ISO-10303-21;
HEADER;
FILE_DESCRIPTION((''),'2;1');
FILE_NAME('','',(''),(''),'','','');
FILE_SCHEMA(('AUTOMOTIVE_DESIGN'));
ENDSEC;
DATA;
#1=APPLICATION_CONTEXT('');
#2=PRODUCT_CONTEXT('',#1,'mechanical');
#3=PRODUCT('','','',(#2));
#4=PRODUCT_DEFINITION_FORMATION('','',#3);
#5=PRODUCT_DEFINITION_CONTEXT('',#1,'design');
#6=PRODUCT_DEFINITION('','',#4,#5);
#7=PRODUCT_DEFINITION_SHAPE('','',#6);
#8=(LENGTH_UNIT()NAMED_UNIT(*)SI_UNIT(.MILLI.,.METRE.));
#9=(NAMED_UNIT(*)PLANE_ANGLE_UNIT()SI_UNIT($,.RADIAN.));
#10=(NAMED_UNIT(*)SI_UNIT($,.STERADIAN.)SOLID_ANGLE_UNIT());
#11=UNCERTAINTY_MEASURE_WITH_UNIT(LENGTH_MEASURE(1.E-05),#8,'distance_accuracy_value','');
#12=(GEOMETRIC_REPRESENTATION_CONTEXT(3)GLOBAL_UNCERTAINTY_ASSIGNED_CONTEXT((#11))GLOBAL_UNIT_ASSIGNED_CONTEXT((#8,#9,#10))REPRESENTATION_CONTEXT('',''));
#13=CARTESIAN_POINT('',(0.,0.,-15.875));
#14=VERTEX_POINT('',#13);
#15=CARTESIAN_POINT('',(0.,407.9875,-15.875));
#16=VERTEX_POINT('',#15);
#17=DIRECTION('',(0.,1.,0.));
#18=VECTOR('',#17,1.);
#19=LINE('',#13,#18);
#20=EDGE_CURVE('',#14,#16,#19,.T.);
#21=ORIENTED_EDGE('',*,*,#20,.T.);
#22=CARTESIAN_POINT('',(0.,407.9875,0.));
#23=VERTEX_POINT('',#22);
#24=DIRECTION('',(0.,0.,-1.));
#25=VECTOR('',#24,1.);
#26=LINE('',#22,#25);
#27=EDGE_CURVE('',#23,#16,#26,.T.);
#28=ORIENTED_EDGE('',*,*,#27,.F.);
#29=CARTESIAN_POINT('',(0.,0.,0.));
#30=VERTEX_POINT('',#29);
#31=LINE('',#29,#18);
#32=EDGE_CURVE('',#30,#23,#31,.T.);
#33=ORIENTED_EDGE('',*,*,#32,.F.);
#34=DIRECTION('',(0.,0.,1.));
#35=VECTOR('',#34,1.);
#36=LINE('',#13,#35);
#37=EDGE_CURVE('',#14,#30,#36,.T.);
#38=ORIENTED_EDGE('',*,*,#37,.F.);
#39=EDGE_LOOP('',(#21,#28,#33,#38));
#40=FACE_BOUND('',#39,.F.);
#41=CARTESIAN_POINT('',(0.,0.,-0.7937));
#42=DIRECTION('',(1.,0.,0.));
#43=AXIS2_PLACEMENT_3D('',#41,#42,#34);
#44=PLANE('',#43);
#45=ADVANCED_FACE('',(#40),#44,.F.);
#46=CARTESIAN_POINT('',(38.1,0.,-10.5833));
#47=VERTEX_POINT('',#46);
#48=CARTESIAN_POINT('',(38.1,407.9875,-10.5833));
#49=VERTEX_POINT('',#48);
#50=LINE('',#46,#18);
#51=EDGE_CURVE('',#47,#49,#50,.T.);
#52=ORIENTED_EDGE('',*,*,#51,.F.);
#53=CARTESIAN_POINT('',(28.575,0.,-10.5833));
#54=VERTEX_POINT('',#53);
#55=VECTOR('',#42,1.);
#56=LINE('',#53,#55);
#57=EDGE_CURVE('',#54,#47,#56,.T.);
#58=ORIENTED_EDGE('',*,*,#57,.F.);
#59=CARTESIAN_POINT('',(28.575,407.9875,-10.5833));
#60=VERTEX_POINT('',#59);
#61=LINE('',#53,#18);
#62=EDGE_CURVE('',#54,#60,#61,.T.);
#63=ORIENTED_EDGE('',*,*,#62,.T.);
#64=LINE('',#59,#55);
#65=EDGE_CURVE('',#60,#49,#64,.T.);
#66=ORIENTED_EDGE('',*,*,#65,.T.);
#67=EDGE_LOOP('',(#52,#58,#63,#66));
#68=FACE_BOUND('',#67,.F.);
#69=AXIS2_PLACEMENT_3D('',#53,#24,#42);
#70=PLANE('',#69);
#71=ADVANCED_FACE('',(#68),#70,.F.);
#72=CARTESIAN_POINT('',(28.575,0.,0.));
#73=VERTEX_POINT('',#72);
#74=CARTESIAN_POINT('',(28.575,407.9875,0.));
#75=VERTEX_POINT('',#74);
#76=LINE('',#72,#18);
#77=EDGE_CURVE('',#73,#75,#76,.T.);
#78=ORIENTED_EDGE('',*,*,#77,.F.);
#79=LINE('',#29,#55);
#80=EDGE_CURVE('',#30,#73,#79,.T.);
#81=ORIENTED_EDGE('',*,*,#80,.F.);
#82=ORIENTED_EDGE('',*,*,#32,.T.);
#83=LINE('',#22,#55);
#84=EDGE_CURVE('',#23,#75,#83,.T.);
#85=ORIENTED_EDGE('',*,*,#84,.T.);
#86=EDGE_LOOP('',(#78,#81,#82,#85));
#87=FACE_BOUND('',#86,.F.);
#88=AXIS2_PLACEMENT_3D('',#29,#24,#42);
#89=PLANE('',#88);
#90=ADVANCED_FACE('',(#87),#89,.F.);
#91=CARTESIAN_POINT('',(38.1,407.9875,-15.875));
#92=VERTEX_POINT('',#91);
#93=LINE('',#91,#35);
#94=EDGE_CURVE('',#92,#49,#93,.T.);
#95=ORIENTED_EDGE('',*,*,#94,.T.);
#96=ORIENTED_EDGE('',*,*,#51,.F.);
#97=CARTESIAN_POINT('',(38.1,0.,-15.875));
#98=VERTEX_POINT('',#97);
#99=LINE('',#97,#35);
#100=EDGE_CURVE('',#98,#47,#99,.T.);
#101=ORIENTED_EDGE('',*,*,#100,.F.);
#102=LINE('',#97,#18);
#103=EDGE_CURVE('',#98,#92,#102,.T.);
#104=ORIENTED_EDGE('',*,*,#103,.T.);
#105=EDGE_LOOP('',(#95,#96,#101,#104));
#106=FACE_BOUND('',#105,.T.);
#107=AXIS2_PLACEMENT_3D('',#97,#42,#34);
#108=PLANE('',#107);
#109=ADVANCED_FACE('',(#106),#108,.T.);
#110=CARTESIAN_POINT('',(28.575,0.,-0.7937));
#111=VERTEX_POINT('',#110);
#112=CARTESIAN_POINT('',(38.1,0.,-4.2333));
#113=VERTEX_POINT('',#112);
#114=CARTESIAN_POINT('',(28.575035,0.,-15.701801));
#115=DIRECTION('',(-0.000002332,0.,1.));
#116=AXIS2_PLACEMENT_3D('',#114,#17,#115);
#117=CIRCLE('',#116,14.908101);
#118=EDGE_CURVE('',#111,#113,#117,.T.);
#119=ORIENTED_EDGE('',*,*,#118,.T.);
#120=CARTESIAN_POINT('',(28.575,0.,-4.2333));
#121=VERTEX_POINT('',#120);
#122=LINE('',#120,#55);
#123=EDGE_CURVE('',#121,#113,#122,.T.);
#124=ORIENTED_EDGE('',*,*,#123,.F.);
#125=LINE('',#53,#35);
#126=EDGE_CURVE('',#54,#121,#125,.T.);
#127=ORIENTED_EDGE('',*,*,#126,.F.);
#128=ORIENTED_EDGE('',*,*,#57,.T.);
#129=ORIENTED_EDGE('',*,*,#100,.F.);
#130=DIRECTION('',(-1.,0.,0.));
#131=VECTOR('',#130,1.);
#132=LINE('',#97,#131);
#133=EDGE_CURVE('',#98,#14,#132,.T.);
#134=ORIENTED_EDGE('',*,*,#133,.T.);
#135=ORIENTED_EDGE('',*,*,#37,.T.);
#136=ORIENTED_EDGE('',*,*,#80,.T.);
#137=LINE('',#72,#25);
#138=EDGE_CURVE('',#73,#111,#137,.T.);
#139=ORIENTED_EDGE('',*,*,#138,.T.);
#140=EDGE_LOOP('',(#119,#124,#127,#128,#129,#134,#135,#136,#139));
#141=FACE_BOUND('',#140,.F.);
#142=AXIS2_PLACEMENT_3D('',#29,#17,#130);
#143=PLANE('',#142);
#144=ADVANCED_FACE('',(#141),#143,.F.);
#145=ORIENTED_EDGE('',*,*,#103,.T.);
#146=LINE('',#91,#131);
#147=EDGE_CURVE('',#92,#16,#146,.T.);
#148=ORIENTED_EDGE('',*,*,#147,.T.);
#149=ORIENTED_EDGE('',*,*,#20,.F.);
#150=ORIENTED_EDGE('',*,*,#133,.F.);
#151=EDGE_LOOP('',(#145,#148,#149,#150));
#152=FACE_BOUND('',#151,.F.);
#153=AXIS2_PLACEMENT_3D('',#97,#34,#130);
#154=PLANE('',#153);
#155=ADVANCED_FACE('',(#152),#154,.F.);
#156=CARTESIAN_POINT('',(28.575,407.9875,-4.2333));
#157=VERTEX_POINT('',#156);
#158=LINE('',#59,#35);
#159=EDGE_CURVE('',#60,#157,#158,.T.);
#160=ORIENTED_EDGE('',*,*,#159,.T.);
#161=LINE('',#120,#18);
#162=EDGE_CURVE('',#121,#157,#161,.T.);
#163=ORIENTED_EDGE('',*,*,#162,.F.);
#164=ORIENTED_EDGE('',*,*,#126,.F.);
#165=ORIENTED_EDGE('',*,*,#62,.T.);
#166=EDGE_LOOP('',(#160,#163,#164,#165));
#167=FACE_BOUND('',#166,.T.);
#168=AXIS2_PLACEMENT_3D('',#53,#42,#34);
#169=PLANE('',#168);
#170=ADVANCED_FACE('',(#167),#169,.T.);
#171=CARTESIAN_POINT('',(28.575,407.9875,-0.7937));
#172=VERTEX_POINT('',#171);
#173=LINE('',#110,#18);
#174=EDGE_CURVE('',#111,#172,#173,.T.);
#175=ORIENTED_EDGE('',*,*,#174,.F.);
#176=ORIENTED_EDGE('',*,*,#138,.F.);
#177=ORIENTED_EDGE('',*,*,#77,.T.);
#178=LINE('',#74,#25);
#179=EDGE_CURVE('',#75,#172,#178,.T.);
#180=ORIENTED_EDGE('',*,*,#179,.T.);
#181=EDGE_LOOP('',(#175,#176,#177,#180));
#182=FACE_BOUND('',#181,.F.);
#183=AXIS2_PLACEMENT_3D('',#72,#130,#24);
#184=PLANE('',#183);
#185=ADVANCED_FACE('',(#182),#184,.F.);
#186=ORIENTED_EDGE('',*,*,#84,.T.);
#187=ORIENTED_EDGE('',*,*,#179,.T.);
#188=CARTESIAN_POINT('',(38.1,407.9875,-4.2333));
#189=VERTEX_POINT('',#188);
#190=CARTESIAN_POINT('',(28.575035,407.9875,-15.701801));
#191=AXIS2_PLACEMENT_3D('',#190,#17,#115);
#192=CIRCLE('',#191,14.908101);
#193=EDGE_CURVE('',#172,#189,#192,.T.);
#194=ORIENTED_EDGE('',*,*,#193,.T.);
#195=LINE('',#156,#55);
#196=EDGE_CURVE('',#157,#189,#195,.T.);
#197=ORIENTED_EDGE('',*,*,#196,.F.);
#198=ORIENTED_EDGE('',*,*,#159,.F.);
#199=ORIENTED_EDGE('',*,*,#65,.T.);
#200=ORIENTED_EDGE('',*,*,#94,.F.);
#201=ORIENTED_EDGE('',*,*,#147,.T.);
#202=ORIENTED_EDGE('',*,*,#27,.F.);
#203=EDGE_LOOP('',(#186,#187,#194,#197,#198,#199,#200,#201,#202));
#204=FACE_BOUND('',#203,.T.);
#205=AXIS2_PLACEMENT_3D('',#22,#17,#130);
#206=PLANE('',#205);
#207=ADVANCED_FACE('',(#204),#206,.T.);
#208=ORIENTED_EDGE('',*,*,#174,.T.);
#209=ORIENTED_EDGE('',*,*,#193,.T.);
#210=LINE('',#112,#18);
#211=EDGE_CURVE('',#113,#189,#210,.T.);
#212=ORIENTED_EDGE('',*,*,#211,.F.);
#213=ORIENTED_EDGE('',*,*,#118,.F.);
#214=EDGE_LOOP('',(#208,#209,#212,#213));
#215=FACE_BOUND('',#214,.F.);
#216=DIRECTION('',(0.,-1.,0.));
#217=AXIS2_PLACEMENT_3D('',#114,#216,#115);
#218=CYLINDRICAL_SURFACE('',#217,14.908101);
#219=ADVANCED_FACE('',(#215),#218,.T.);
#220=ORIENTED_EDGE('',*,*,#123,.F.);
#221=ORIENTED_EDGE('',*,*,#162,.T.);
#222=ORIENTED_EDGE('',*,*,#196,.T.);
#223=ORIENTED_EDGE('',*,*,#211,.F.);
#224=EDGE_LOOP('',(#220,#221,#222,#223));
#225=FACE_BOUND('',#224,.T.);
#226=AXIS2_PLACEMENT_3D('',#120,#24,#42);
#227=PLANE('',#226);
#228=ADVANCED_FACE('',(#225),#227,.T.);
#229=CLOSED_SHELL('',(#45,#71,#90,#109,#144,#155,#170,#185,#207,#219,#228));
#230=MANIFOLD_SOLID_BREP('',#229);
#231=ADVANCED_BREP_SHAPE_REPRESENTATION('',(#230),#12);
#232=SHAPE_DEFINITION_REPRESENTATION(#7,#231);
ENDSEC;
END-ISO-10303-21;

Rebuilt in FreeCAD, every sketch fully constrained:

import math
import FreeCAD as App
import Part
import Sketcher

V = App.Vector
Q = App.Units.Quantity

doc = App.newDocument("Part")
params = doc.addObject("Spreadsheet::Sheet", "Params")
for row, (alias, value) in enumerate([
    ("sketch1_width", "1.5 in"),
    ("sketch1_height", "0.25 in"),
    ("sketch1_width2", "1.125 in"),
    ("sketch1_height2", "0.031248 in"),
    ("sketch1_height3", "0.625 in"),
    ("pad1_length", "16.0625 in"),
], start=1):
    params.set(f"A{row}", alias)
    params.set(f"B{row}", "=" + value)
    params.setAlias(f"B{row}", alias)

body = doc.addObject("PartDesign::Body", "Body")

sketch1 = body.newObject("Sketcher::SketchObject", "Sketch")
sketch1.AttachmentSupport = (doc.getObject("XZ_Plane"), [""])
sketch1.MapMode = "FlatFace"
sketch1.addGeometry(Part.LineSegment(V(0, 0, 0), V(28.6, 0, 0)), False)
sketch1.addGeometry(Part.LineSegment(V(28.6, 0, 0), V(28.6, -0.8, 0)), False)
sketch1.addGeometry(Part.ArcOfCircle(Part.Circle(V(28.6, -15.7, 0), V(0, 0, 1), 14.9), math.radians(50), math.radians(90)), False)
sketch1.addGeometry(Part.LineSegment(V(38.1, -4.2, 0), V(28.6, -4.2, 0)), False)
sketch1.addGeometry(Part.LineSegment(V(28.6, -4.2, 0), V(28.6, -10.6, 0)), False)
sketch1.addGeometry(Part.LineSegment(V(28.6, -10.6, 0), V(38.1, -10.6, 0)), False)
sketch1.addGeometry(Part.LineSegment(V(38.1, -10.6, 0), V(38.1, -15.9, 0)), False)
sketch1.addGeometry(Part.LineSegment(V(38.1, -15.9, 0), V(0, -15.9, 0)), False)
sketch1.addGeometry(Part.LineSegment(V(0, -15.9, 0), V(0, 0, 0)), False)
sketch1.addConstraint(Sketcher.Constraint("Coincident", 0, 2, 1, 1))
sketch1.addConstraint(Sketcher.Constraint("Coincident", 1, 2, 2, 2))
sketch1.addConstraint(Sketcher.Constraint("Coincident", 2, 1, 3, 1))
sketch1.addConstraint(Sketcher.Constraint("Coincident", 3, 2, 4, 1))
sketch1.addConstraint(Sketcher.Constraint("Coincident", 4, 2, 5, 1))
sketch1.addConstraint(Sketcher.Constraint("Coincident", 5, 2, 6, 1))
sketch1.addConstraint(Sketcher.Constraint("Coincident", 6, 2, 7, 1))
sketch1.addConstraint(Sketcher.Constraint("Coincident", 7, 2, 8, 1))
sketch1.addConstraint(Sketcher.Constraint("Coincident", 8, 2, 0, 1))
sketch1.addConstraint(Sketcher.Constraint("Horizontal", 0))
sketch1.addConstraint(Sketcher.Constraint("Vertical", 1))
sketch1.addConstraint(Sketcher.Constraint("Horizontal", 3))
sketch1.addConstraint(Sketcher.Constraint("Vertical", 4))
sketch1.addConstraint(Sketcher.Constraint("Horizontal", 5))
sketch1.addConstraint(Sketcher.Constraint("Vertical", 6))
sketch1.addConstraint(Sketcher.Constraint("Horizontal", 7))
sketch1.addConstraint(Sketcher.Constraint("Vertical", 8))
sketch1.addConstraint(Sketcher.Constraint("Coincident", 8, 2, -1, 1))
sketch1.addConstraint(Sketcher.Constraint("Vertical", 2, 3, 0, 2))
sketch1.addConstraint(Sketcher.Constraint("Vertical", 1, 2, 3, 2))
sketch1.addConstraint(Sketcher.Constraint("Vertical", 2, 1, 5, 2))
sketch1.addConstraint(Sketcher.Constraint("DistanceX", 7, 2, 7, 1, Q("1.5 in")))
sketch1.addConstraint(Sketcher.Constraint("DistanceY", 4, 2, 4, 1, Q("0.25 in")))
sketch1.addConstraint(Sketcher.Constraint("DistanceX", 0, 1, 0, 2, Q("1.125 in")))
sketch1.addConstraint(Sketcher.Constraint("DistanceY", 1, 2, 1, 1, Q("0.031248 in")))
sketch1.addConstraint(Sketcher.Constraint("DistanceY", 8, 1, 8, 2, Q("0.625 in")))
sketch1.addConstraint(Sketcher.Constraint("Radius", 2, Q("14.9083 mm")))
sketch1.setExpression("Constraints[21]", "Params.sketch1_width")
sketch1.setExpression("Constraints[22]", "Params.sketch1_height")
sketch1.setExpression("Constraints[23]", "Params.sketch1_width2")
sketch1.setExpression("Constraints[24]", "Params.sketch1_height2")
sketch1.setExpression("Constraints[25]", "Params.sketch1_height3")
pad1 = body.newObject("PartDesign::Pad", "Pad")
pad1.Profile = sketch1
pad1.setExpression("Length", "Params.pad1_length")
pad1.Reversed = True

doc.recompute()
